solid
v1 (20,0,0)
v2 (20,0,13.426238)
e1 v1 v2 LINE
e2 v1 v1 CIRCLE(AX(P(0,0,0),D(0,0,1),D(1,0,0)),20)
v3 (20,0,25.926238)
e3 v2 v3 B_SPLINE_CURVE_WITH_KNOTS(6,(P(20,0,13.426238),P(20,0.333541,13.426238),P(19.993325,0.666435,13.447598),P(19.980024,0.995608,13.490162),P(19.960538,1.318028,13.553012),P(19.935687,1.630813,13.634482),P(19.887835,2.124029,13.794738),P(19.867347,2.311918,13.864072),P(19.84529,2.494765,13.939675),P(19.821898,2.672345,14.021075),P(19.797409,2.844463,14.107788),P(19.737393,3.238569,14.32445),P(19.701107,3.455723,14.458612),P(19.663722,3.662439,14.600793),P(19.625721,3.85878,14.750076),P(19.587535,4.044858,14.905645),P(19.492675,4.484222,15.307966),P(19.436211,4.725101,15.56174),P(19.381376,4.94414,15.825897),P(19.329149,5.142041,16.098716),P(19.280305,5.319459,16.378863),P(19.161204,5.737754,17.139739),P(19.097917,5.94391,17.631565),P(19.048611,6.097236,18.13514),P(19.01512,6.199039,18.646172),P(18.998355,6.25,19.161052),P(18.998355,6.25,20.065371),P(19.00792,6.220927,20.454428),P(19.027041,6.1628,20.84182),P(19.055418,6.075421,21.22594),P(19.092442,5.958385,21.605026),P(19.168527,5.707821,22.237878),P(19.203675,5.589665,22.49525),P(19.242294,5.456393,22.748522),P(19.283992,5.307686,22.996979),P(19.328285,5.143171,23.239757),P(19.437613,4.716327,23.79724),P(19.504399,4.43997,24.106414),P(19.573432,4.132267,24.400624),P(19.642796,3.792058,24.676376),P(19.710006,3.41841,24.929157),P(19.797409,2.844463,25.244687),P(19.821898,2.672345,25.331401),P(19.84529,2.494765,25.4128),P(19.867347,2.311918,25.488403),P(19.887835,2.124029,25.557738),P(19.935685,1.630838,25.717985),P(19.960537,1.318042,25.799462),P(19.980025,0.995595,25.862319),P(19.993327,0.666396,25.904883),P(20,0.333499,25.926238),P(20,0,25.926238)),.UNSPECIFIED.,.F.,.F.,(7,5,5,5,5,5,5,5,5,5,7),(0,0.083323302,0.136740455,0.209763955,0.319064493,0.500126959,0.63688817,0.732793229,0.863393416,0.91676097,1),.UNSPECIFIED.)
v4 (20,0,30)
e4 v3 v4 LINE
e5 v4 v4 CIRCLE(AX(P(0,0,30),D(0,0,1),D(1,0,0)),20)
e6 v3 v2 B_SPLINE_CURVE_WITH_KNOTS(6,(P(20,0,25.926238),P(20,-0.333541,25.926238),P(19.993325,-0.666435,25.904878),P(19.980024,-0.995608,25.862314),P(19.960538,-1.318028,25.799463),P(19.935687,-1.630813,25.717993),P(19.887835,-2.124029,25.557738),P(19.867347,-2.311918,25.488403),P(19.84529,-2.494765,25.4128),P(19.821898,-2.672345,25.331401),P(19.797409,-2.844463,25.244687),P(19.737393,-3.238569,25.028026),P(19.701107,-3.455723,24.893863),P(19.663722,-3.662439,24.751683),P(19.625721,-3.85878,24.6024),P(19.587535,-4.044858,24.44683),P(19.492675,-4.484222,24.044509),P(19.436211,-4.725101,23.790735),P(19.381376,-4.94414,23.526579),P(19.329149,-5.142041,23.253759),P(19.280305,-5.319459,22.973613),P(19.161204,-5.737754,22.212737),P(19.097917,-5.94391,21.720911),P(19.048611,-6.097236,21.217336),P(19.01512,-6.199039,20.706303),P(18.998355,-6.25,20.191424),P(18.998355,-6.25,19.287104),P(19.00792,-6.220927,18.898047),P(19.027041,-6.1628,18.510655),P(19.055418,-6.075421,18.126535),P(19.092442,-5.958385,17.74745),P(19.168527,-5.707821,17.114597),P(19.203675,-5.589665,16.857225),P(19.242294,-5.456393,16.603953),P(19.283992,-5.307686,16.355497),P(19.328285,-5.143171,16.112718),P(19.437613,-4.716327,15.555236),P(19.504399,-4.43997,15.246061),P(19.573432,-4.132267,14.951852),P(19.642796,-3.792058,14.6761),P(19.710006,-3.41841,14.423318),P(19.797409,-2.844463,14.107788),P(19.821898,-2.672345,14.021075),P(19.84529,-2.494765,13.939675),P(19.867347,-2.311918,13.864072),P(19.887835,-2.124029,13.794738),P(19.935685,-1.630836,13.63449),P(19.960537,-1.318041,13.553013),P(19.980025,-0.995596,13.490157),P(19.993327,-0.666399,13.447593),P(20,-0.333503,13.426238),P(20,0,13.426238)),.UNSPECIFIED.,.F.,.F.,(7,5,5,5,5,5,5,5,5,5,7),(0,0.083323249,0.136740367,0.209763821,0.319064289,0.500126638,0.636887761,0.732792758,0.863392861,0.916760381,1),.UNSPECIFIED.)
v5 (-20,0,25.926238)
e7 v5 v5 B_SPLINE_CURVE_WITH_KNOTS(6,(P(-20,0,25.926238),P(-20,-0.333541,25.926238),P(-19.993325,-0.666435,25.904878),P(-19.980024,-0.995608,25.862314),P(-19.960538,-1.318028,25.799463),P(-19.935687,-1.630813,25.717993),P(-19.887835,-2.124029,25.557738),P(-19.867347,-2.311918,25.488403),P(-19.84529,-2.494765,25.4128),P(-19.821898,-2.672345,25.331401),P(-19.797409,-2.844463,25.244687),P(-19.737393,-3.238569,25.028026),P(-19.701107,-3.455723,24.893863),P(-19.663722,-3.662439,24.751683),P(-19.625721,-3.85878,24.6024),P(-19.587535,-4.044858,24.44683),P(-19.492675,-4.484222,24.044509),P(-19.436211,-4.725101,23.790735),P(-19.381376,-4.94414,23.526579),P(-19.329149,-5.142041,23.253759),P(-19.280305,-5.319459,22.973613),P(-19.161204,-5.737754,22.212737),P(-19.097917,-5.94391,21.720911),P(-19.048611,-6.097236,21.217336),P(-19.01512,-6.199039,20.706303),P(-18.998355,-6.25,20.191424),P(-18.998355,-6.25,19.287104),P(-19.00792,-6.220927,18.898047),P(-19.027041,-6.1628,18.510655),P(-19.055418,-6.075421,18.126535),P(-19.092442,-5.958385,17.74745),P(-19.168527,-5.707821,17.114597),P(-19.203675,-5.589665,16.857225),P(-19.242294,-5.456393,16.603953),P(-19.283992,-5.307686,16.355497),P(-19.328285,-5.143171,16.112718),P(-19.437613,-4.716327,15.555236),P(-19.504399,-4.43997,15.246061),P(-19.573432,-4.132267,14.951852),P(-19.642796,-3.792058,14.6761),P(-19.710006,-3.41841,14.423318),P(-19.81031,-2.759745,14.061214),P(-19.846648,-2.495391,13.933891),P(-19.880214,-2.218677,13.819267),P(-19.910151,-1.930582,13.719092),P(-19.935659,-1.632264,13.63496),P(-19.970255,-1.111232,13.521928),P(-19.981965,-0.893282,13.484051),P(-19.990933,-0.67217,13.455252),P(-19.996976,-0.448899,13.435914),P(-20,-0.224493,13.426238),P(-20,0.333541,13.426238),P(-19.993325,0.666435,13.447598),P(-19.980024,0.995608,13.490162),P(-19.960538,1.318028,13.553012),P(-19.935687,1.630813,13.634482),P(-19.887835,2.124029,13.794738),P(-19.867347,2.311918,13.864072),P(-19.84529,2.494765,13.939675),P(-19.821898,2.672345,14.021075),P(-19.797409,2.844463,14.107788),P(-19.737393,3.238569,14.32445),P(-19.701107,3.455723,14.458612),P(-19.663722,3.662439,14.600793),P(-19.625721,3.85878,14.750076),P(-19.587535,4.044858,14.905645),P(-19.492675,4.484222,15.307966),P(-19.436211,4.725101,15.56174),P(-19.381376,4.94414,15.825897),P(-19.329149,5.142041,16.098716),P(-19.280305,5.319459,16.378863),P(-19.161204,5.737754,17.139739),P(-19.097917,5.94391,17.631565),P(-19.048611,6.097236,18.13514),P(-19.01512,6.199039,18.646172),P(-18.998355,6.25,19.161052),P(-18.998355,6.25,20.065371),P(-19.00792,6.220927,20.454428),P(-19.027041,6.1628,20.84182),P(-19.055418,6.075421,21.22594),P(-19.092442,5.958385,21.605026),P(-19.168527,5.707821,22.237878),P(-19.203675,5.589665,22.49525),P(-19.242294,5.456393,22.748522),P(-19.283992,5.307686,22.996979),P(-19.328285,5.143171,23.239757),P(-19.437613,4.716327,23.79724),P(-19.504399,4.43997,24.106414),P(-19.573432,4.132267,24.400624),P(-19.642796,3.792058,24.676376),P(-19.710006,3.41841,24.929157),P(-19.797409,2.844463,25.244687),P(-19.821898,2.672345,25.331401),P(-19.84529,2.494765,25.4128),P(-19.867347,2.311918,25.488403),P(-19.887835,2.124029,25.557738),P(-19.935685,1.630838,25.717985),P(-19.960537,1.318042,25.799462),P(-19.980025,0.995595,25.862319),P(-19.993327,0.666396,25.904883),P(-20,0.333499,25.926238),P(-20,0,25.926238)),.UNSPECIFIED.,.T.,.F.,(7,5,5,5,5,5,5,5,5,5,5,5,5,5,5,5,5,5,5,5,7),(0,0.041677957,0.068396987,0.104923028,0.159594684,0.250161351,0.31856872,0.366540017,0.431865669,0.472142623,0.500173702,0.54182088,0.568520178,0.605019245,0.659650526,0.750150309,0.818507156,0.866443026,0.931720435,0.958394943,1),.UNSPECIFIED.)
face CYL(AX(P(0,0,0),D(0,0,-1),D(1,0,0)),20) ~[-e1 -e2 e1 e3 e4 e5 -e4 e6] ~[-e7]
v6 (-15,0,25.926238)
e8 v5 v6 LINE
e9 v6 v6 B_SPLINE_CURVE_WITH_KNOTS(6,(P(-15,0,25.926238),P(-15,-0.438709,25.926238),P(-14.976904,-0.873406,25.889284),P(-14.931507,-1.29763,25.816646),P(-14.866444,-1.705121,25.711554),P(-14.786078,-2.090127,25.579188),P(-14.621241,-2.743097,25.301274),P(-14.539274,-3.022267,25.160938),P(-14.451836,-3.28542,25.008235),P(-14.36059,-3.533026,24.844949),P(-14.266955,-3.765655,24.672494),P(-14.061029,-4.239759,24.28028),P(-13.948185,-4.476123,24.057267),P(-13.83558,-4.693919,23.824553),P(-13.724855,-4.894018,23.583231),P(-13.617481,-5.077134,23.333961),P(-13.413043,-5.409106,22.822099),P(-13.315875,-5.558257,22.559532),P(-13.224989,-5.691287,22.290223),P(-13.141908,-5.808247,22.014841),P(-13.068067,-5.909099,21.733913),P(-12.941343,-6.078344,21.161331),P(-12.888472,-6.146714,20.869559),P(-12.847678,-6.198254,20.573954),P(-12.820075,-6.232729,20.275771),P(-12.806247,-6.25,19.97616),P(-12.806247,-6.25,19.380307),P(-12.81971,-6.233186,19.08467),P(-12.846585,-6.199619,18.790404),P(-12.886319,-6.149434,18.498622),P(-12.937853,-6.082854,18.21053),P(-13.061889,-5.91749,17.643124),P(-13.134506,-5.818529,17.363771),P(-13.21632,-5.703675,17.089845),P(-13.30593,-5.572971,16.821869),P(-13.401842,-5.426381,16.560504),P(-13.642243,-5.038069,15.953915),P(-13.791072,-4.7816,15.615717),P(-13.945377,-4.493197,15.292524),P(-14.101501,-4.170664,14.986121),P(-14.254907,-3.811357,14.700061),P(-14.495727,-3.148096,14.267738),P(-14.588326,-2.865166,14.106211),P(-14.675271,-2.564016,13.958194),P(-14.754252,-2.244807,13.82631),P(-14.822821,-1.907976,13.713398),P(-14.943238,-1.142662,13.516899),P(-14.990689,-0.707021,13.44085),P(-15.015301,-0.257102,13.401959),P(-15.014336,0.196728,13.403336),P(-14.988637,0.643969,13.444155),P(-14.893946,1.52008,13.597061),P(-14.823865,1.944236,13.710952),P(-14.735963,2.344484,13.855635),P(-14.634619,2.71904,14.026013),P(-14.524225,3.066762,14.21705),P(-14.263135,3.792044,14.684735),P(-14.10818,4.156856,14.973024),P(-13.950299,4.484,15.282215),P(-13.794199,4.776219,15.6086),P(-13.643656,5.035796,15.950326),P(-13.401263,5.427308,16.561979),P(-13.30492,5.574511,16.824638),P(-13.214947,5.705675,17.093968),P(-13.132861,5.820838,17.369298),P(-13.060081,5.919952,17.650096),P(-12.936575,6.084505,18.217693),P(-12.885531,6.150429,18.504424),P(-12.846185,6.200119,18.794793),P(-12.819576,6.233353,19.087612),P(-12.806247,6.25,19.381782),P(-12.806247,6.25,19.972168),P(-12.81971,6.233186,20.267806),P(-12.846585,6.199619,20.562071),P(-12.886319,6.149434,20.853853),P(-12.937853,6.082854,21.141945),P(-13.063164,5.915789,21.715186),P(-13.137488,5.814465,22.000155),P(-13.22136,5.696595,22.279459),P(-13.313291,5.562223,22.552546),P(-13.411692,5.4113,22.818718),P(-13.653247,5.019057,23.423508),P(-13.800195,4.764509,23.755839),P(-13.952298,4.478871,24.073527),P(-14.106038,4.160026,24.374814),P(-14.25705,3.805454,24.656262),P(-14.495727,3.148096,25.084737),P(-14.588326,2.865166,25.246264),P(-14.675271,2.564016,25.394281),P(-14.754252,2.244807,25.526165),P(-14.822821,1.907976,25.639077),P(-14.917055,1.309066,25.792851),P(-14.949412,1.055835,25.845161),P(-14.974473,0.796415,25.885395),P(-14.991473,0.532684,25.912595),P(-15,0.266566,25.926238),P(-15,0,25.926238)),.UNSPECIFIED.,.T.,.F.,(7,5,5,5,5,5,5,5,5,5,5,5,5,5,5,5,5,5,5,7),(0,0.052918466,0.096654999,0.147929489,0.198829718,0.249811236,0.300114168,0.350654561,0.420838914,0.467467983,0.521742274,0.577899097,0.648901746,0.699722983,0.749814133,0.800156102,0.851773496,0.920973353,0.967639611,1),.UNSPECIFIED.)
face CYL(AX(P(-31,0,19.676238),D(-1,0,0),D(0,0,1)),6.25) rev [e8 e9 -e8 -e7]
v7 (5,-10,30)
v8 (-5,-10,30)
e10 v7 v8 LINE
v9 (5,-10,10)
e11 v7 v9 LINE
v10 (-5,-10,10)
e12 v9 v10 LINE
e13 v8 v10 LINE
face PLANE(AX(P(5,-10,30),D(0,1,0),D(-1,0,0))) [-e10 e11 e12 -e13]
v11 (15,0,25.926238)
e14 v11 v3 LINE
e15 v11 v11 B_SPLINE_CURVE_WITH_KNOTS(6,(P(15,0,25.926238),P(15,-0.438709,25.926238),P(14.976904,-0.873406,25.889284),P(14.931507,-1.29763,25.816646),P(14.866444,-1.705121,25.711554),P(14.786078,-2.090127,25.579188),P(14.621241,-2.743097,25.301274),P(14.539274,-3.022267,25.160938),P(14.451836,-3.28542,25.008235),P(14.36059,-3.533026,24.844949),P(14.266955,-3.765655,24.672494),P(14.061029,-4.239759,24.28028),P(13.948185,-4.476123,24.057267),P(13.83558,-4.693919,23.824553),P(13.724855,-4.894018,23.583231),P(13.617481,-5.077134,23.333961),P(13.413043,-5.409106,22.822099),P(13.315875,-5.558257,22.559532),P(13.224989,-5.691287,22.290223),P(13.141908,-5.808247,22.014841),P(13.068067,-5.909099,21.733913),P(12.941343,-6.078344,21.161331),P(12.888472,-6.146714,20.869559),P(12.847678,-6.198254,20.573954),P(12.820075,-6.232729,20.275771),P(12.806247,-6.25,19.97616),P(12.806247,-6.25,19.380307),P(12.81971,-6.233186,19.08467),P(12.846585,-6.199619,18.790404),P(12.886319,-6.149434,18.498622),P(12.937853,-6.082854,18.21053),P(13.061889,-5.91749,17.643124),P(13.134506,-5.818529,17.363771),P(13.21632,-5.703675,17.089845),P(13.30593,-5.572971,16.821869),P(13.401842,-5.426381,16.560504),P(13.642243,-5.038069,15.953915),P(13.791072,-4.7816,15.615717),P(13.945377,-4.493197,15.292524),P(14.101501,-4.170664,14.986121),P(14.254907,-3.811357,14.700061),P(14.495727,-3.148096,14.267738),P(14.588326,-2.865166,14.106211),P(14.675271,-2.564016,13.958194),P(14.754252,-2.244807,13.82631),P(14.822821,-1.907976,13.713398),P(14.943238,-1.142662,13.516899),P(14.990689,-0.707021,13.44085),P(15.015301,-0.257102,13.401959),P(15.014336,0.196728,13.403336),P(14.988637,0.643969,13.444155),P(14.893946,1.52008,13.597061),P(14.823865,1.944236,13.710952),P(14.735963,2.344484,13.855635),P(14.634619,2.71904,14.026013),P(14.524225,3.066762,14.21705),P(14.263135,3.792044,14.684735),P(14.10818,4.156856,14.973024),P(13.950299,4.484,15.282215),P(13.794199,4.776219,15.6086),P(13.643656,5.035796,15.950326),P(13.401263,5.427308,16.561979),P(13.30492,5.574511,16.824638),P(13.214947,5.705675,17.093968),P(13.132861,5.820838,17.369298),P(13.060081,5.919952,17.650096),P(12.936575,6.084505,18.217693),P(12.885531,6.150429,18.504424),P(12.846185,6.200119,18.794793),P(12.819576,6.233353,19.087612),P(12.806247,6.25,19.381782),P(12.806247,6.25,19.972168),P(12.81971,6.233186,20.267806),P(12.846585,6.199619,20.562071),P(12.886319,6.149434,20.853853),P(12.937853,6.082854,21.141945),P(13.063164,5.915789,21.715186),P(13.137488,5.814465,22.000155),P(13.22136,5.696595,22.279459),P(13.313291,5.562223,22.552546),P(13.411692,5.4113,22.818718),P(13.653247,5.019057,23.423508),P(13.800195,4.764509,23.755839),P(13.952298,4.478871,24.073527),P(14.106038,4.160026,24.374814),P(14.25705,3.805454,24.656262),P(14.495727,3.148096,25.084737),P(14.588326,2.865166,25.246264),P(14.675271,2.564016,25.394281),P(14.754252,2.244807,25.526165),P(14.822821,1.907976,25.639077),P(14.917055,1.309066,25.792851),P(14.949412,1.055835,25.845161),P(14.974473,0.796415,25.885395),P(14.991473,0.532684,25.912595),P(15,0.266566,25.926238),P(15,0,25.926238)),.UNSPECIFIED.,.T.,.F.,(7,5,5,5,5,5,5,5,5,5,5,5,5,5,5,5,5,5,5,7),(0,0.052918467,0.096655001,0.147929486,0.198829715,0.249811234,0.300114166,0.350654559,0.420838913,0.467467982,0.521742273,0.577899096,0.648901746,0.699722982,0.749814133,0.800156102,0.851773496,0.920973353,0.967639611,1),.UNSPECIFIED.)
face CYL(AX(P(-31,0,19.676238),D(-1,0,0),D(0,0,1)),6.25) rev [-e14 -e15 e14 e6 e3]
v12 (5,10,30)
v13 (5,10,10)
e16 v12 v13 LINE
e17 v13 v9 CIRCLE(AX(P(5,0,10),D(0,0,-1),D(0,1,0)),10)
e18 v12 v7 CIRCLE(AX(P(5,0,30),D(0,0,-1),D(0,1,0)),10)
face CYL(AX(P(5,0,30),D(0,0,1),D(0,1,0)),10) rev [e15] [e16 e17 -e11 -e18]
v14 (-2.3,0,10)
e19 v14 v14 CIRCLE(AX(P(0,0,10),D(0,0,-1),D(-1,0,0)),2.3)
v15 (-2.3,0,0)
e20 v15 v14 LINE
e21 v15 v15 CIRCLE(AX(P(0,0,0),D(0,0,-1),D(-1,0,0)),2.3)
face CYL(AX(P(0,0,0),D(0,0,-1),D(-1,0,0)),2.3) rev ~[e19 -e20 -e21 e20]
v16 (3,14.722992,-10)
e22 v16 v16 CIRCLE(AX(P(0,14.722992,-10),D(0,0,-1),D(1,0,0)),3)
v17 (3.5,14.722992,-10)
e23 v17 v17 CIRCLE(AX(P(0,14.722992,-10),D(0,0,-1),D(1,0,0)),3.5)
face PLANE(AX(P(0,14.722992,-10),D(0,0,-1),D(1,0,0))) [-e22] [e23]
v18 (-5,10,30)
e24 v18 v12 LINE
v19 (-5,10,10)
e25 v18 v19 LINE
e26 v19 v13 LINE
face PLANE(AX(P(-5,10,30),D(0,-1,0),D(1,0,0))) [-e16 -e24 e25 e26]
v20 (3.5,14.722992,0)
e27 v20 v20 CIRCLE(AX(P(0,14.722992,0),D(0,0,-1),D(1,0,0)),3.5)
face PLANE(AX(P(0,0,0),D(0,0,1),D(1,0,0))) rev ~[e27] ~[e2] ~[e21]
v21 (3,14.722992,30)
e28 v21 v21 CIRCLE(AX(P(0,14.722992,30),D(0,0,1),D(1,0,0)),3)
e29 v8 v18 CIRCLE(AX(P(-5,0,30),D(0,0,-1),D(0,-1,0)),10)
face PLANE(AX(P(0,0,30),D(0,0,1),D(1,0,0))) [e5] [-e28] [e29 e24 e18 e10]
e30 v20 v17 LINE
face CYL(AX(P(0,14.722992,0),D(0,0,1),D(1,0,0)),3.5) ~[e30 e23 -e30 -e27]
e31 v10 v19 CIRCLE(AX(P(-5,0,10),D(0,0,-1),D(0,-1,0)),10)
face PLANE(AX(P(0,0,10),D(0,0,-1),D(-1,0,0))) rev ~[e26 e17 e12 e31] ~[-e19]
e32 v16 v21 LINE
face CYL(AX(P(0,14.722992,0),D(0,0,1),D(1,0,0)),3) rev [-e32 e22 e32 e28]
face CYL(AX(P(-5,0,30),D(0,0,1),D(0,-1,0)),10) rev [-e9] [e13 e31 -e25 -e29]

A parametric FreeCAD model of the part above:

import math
import FreeCAD as App
import Part
import Sketcher
from FreeCAD import Vector
Q = App.Units.Quantity

doc = App.newDocument("Part")
body = doc.addObject("PartDesign::Body", "Body")

# Sketch on XY plane
sketch1 = body.newObject("Sketcher::SketchObject", "Sketch")
sketch1.AttachmentSupport = (doc.getObject("XY_Plane"), [""])
sketch1.MapMode = "FlatFace"
sketch1.addGeometry(Part.Circle(Vector(0, 0, 0), Vector(0, 0, 1), 20), False)
sketch1.addConstraint(Sketcher.Constraint("Coincident", 0, 3, -1, 1))
sketch1.addConstraint(Sketcher.Constraint("Diameter", 0, Q("40 mm")))
pad1 = body.newObject("PartDesign::Pad", "Pad")
pad1.Profile = sketch1
pad1.Length = 30

# Sketch on XY plane
sketch2 = body.newObject("Sketcher::SketchObject", "Sketch001")
sketch2.AttachmentSupport = (doc.getObject("XY_Plane"), [""])
sketch2.MapMode = "FlatFace"
sketch2.AttachmentOffset = App.Placement(Vector(0, 0, 30), App.Rotation())
sketch2.addGeometry(Part.LineSegment(Vector(5, 10, 0), Vector(-5, 10, 0)), False)
sketch2.addGeometry(Part.ArcOfCircle(Part.Circle(Vector(-5, 0, 0), Vector(0, 0, 1), 10), math.radians(90), math.radians(270)), False)
sketch2.addGeometry(Part.LineSegment(Vector(-5, -10, 0), Vector(5, -10, 0)), False)
sketch2.addGeometry(Part.ArcOfCircle(Part.Circle(Vector(5, 0, 0), Vector(0, 0, 1), 10), math.radians(-90), math.radians(90)), False)
sketch2.addConstraint(Sketcher.Constraint("Tangent", 0, 2, 1, 1))
sketch2.addConstraint(Sketcher.Constraint("Tangent", 1, 2, 2, 1))
sketch2.addConstraint(Sketcher.Constraint("Tangent", 2, 2, 3, 1))
sketch2.addConstraint(Sketcher.Constraint("Tangent", 3, 2, 0, 1))
sketch2.addConstraint(Sketcher.Constraint("Horizontal", 0))
sketch2.addConstraint(Sketcher.Constraint("Horizontal", 2))
sketch2.addConstraint(Sketcher.Constraint("Symmetric", 1, 3, 3, 3, -1, 1))
sketch2.addConstraint(Sketcher.Constraint("Radius", 1, Q("10 mm")))
sketch2.addConstraint(Sketcher.Constraint("DistanceX", 0, 2, 0, 1, Q("10 mm")))
pocket1 = body.newObject("PartDesign::Pocket", "Pocket")
pocket1.Profile = sketch2
pocket1.Length = 20

# Sketch on XY plane
sketch3 = body.newObject("Sketcher::SketchObject", "Sketch002")
sketch3.AttachmentSupport = (doc.getObject("XY_Plane"), [""])
sketch3.MapMode = "FlatFace"
sketch3.AttachmentOffset = App.Placement(Vector(0, 0, 30), App.Rotation())
sketch3.addGeometry(Part.Circle(Vector(0, 14.7, 0), Vector(0, 0, 1), 3), False)
sketch3.addConstraint(Sketcher.Constraint("PointOnObject", 0, 3, -2))
sketch3.addConstraint(Sketcher.Constraint("Diameter", 0, Q("6 mm")))
sketch3.addConstraint(Sketcher.Constraint("DistanceY", -1, 1, 0, 3, Q("14.722992 mm")))
pocket2 = body.newObject("PartDesign::Pocket", "Pocket001")
pocket2.Profile = sketch3
pocket2.Length = 35

# Sketch on YZ plane
sketch4 = body.newObject("Sketcher::SketchObject", "Sketch003")
sketch4.AttachmentSupport = (doc.getObject("YZ_Plane"), [""])
sketch4.MapMode = "FlatFace"
sketch4.addGeometry(Part.Circle(Vector(0, 20, 0), Vector(0, 0, 1), 6), False)
sketch4.addConstraint(Sketcher.Constraint("PointOnObject", 0, 3, -2))
sketch4.addConstraint(Sketcher.Constraint("Diameter", 0, Q("12.5 mm")))
sketch4.addConstraint(Sketcher.Constraint("DistanceY", -1, 1, 0, 3, Q("19.676238 mm")))
pocket3 = body.newObject("PartDesign::Pocket", "Pocket002")
pocket3.Profile = sketch4
pocket3.Type = "ThroughAll"
pocket3.Midplane = True

# Sketch on XY plane
sketch5 = body.newObject("Sketcher::SketchObject", "Sketch004")
sketch5.AttachmentSupport = (doc.getObject("XY_Plane"), [""])
sketch5.MapMode = "FlatFace"
sketch5.addGeometry(Part.Circle(Vector(0, 0, 0), Vector(0, 0, 1), 2.3), False)
sketch5.addConstraint(Sketcher.Constraint("Coincident", 0, 3, -1, 1))
sketch5.addConstraint(Sketcher.Constraint("Diameter", 0, Q("4.6 mm")))
pocket4 = body.newObject("PartDesign::Pocket", "Pocket003")
pocket4.Profile = sketch5
pocket4.Length = 30
pocket4.Reversed = True

# Sketch on XY plane
sketch6 = body.newObject("Sketcher::SketchObject", "Sketch005")
sketch6.AttachmentSupport = (doc.getObject("XY_Plane"), [""])
sketch6.MapMode = "FlatFace"
sketch6.addGeometry(Part.Circle(Vector(0, 14.7, 0), Vector(0, 0, 1), 3.5), False)
sketch6.addConstraint(Sketcher.Constraint("PointOnObject", 0, 3, -2))
sketch6.addConstraint(Sketcher.Constraint("Diameter", 0, Q("7 mm")))
sketch6.addConstraint(Sketcher.Constraint("DistanceY", -1, 1, 0, 3, Q("14.722992 mm")))
pad2 = body.newObject("PartDesign::Pad", "Pad001")
pad2.Profile = sketch6
pad2.Length = 10
pad2.Reversed = True

# Sketch on XY plane
sketch7 = body.newObject("Sketcher::SketchObject", "Sketch006")
sketch7.AttachmentSupport = (doc.getObject("XY_Plane"), [""])
sketch7.MapMode = "FlatFace"
sketch7.addGeometry(Part.Circle(Vector(0, 14.7, 0), Vector(0, 0, 1), 3), False)
sketch7.addConstraint(Sketcher.Constraint("PointOnObject", 0, 3, -2))
sketch7.addConstraint(Sketcher.Constraint("Diameter", 0, Q("6 mm")))
sketch7.addConstraint(Sketcher.Constraint("DistanceY", -1, 1, 0, 3, Q("14.722992 mm")))
pocket5 = body.newObject("PartDesign::Pocket", "Pocket004")
pocket5.Profile = sketch7
pocket5.Length = 10

doc.recompute()
